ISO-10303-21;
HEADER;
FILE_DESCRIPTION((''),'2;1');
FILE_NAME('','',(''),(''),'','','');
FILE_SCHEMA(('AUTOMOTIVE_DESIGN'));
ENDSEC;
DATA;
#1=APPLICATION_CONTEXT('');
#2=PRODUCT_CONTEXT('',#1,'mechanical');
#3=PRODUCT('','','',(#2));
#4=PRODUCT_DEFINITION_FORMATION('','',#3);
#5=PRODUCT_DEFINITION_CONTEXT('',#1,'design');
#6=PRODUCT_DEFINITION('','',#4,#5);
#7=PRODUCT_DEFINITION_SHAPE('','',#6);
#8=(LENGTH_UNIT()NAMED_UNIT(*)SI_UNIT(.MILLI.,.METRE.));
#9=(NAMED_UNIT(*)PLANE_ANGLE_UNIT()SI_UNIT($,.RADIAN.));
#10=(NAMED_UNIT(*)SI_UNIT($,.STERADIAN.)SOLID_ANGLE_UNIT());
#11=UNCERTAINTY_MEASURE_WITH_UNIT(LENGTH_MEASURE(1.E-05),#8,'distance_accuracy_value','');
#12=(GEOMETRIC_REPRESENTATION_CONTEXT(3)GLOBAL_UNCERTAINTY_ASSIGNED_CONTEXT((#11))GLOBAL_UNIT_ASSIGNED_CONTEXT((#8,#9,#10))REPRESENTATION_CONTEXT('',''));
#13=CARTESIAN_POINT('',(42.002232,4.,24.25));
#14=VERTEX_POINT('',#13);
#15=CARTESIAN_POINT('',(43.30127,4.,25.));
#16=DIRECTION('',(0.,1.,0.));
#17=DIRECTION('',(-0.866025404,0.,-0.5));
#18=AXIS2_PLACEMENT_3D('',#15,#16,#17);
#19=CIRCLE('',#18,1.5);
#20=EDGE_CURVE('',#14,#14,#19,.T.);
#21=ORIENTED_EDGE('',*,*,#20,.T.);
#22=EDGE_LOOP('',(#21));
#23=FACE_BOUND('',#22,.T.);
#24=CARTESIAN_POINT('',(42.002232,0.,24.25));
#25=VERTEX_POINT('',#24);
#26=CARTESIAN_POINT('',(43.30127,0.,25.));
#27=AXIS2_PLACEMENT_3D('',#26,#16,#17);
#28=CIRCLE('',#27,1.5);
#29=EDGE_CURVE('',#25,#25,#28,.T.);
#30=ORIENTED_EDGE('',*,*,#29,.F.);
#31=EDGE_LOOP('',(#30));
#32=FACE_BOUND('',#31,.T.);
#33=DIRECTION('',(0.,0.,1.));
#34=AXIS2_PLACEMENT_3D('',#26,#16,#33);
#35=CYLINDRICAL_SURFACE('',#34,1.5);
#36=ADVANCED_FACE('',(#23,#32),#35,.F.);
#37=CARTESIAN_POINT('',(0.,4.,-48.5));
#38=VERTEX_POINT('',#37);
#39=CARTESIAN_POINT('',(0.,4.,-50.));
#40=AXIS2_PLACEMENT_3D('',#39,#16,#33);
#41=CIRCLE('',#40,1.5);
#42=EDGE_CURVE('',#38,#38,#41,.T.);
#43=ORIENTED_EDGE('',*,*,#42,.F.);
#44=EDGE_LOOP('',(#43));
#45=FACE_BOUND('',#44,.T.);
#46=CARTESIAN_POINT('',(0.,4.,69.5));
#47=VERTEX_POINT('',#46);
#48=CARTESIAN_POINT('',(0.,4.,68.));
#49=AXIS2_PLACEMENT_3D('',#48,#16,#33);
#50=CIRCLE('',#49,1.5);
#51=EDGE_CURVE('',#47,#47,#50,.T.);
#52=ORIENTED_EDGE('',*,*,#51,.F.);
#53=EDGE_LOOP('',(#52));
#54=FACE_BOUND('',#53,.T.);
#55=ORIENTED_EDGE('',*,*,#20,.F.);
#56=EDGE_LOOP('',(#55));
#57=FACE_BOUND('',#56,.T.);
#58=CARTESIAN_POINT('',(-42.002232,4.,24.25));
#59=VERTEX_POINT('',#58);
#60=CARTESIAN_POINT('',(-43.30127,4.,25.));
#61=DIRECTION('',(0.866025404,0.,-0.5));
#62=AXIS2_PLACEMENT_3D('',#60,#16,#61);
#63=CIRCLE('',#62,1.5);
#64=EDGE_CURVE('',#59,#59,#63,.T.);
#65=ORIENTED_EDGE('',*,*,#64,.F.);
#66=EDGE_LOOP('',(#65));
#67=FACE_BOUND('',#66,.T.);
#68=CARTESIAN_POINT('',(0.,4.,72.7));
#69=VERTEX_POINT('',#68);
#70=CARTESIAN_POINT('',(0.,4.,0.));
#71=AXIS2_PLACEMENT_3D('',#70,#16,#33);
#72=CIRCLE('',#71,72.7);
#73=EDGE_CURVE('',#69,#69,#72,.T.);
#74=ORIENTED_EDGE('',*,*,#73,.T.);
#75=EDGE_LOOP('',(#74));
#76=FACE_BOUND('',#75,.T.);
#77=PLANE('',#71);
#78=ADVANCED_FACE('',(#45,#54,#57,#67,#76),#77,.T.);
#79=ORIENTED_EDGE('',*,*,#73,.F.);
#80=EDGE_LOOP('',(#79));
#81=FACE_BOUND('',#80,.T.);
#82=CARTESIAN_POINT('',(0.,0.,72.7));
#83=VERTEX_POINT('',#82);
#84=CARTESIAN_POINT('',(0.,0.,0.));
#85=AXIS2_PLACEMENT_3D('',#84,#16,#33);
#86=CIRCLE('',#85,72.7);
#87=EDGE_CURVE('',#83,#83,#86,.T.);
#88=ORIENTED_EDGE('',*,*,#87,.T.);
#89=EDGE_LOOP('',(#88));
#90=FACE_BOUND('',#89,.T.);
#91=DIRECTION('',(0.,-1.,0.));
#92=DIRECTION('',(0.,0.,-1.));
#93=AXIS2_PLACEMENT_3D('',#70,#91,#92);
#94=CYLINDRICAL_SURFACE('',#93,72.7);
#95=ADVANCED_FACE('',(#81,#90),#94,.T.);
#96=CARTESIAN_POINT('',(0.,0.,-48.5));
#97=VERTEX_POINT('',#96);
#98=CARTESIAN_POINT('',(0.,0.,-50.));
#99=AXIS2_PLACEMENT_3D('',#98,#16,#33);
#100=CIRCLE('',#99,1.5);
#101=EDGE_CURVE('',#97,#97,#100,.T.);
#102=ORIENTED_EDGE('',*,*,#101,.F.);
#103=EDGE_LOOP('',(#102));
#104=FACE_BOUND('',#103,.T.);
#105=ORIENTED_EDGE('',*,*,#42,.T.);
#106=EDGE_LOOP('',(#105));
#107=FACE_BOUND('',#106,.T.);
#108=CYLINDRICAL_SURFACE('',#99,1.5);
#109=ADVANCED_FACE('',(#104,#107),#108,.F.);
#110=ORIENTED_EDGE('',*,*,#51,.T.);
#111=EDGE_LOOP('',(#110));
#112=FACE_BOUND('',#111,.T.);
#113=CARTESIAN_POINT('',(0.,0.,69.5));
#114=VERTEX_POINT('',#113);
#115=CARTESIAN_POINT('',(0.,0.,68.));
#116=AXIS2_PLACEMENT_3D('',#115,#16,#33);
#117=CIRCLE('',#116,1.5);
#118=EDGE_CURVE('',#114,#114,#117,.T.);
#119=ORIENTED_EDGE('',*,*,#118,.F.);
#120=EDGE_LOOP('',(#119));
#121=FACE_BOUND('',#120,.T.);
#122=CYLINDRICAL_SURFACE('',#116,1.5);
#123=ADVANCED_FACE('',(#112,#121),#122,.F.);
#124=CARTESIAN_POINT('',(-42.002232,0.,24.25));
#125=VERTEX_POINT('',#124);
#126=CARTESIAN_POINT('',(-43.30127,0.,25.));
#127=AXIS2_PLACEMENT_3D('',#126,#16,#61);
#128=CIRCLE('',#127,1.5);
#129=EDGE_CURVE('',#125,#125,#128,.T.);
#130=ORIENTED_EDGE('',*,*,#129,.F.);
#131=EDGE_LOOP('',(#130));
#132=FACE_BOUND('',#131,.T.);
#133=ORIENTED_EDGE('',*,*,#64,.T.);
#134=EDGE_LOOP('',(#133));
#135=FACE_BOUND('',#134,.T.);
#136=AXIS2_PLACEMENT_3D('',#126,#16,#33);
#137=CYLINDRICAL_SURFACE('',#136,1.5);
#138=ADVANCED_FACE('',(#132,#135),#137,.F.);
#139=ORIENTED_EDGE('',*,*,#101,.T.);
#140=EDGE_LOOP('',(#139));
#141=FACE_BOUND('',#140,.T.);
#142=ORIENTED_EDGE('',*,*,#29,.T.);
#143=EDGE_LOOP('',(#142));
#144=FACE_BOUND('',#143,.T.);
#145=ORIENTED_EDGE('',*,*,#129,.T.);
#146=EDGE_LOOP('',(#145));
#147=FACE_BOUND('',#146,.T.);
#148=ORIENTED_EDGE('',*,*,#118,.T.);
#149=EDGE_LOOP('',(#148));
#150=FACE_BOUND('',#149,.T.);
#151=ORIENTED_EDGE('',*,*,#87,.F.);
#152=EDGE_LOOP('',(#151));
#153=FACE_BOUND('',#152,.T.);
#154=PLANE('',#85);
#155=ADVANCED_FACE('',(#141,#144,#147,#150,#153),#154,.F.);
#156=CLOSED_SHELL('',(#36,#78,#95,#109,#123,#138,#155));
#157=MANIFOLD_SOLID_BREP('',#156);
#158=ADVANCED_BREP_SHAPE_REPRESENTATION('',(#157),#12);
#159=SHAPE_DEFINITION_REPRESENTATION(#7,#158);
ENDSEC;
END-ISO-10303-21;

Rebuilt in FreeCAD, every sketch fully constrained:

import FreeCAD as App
import Part
import Sketcher

doc = App.newDocument("Part")
params = doc.addObject("Spreadsheet::Sheet", "Params")
for row, (alias, value) in enumerate([
    ("sketch1_diameter", "145.4 mm"),
    ("pad1_length", "4 mm"),
    ("sketch2_diameter", "3 mm"),
    ("sketch3_diameter", "3 mm"),
], start=1):
    params.set(f"A{row}", alias)
    params.set(f"B{row}", "=" + value)
    params.setAlias(f"B{row}", alias)

body = doc.addObject("PartDesign::Body", "Body")

# Sketch on XZ plane
sketch1 = body.newObject("Sketcher::SketchObject", "Sketch")
sketch1.AttachmentSupport = (doc.getObject("XZ_Plane"), [""])
sketch1.MapMode = "FlatFace"
sketch1.addGeometry(Part.Circle(App.Vector(0, 0, 0), App.Vector(0, 0, 1), 73), False)
sketch1.addConstraint([
    Sketcher.Constraint("Coincident", 0, 3, -1, 1),
    Sketcher.Constraint("Diameter", 0, 145.4),
])
sketch1.setExpression("Constraints[1]", "Params.sketch1_diameter")
pad1 = body.newObject("PartDesign::Pad", "Pad")
pad1.Profile = sketch1
pad1.setExpression("Length", "Params.pad1_length")
pad1.Reversed = True

# Sketch on XZ plane
sketch2 = body.newObject("Sketcher::SketchObject", "Sketch001")
sketch2.AttachmentSupport = (doc.getObject("XZ_Plane"), [""])
sketch2.MapMode = "FlatFace"
sketch2.AttachmentOffset = App.Placement(App.Vector(0, 0, -4), App.Rotation())
sketch2.addGeometry(Part.Circle(App.Vector(0, -50, 0), App.Vector(0, 0, 1), 1.5), False)
sketch2.addConstraint([
    Sketcher.Constraint("PointOnObject", 0, 3, -2),
    Sketcher.Constraint("Diameter", 0, 3.0),
    Sketcher.Constraint("DistanceY", 0, 3, -1, 1, 50.0),
])
sketch2.setExpression("Constraints[1]", "Params.sketch2_diameter")
pocket1 = body.newObject("PartDesign::Pocket", "Pocket")
pocket1.Profile = sketch2
pocket1.Type = "ThroughAll"
pocket1.Reversed = True
doc.recompute()

polarpattern = body.newObject("PartDesign::PolarPattern", "PolarPattern")
polarpattern.Originals = [pocket1]
polarpattern.Axis = (doc.getObject("Y_Axis"), [""])
polarpattern.Angle = 360
polarpattern.Occurrences = 3
body.Tip = polarpattern

# Sketch on XZ plane
sketch3 = body.newObject("Sketcher::SketchObject", "Sketch002")
sketch3.AttachmentSupport = (doc.getObject("XZ_Plane"), [""])
sketch3.MapMode = "FlatFace"
sketch3.AttachmentOffset = App.Placement(App.Vector(0, 0, -4), App.Rotation())
sketch3.addGeometry(Part.Circle(App.Vector(0, 68, 0), App.Vector(0, 0, 1), 1.5), False)
sketch3.addConstraint([
    Sketcher.Constraint("PointOnObject", 0, 3, -2),
    Sketcher.Constraint("Diameter", 0, 3.0),
    Sketcher.Constraint("DistanceY", -1, 1, 0, 3, 68.0),
])
sketch3.setExpression("Constraints[1]", "Params.sketch3_diameter")
pocket2 = body.newObject("PartDesign::Pocket", "Pocket001")
pocket2.Profile = sketch3
pocket2.Type = "ThroughAll"
pocket2.Reversed = True

doc.recompute()
